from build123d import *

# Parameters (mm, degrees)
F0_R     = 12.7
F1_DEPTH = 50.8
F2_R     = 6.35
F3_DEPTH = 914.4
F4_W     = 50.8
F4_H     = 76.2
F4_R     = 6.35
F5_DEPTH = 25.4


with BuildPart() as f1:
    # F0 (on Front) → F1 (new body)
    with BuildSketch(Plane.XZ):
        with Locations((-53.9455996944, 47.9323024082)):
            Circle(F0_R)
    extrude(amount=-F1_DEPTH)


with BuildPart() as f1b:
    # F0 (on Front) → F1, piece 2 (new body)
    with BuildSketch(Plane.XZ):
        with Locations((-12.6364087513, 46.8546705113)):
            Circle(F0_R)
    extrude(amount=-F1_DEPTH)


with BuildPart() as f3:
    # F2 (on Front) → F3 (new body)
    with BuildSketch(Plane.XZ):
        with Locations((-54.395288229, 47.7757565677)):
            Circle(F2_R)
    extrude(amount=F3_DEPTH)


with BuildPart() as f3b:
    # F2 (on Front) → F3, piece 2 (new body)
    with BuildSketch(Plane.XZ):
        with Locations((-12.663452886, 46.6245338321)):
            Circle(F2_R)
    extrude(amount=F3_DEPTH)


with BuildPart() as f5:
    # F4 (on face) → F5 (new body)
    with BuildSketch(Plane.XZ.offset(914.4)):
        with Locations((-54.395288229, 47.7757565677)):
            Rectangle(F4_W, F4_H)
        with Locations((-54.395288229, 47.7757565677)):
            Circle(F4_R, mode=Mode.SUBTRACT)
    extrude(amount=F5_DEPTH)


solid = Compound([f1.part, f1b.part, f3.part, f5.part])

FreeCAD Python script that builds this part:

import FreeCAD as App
import Part
import Sketcher

V = App.Vector
Q = App.Units.Quantity

doc = App.newDocument("Part")
body = doc.addObject("PartDesign::Body", "Body")

# Sketch on XZ plane
sketch1 = body.newObject("Sketcher::SketchObject", "Sketch")
sketch1.AttachmentSupport = (doc.getObject("XZ_Plane"), [""])
sketch1.MapMode = "FlatFace"
sketch1.addGeometry(Part.Circle(V(-53.9456, 47.932302, 0), V(0, 0, 1), 12.7), False)
sketch1.addConstraint(Sketcher.Constraint("Diameter", 0, Q("1 in")))
sketch1.addConstraint(Sketcher.Constraint("DistanceX", 0, 3, -1, 1, Q("53.9456 mm")))
sketch1.addConstraint(Sketcher.Constraint("DistanceY", -1, 1, 0, 3, Q("47.932302 mm")))
pad1 = body.newObject("PartDesign::Pad", "Pad")
pad1.Profile = sketch1
pad1.Length = Q("2 in")
pad1.Reversed = True
body2 = doc.addObject("PartDesign::Body", "Body001")

# Sketch on XZ plane
sketch2 = body2.newObject("Sketcher::SketchObject", "Sketch001")
sketch2.AttachmentSupport = (doc.getObject("XZ_Plane001"), [""])
sketch2.MapMode = "FlatFace"
sketch2.addGeometry(Part.Circle(V(-12.636409, 46.854671, 0), V(0, 0, 1), 12.7), False)
sketch2.addConstraint(Sketcher.Constraint("Diameter", 0, Q("1 in")))
sketch2.addConstraint(Sketcher.Constraint("DistanceX", 0, 3, -1, 1, Q("12.636409 mm")))
sketch2.addConstraint(Sketcher.Constraint("DistanceY", -1, 1, 0, 3, Q("46.854671 mm")))
pad2 = body2.newObject("PartDesign::Pad", "Pad001")
pad2.Profile = sketch2
pad2.Length = Q("2 in")
pad2.Reversed = True
body3 = doc.addObject("PartDesign::Body", "Body002")

# Sketch on XZ plane
sketch3 = body3.newObject("Sketcher::SketchObject", "Sketch002")
sketch3.AttachmentSupport = (doc.getObject("XZ_Plane002"), [""])
sketch3.MapMode = "FlatFace"
sketch3.addGeometry(Part.Circle(V(-54.395288, 47.775757, 0), V(0, 0, 1), 6.35), False)
sketch3.addConstraint(Sketcher.Constraint("Diameter", 0, Q("0.5 in")))
sketch3.addConstraint(Sketcher.Constraint("DistanceX", 0, 3, -1, 1, Q("54.395288 mm")))
sketch3.addConstraint(Sketcher.Constraint("DistanceY", -1, 1, 0, 3, Q("47.775757 mm")))
pad3 = body3.newObject("PartDesign::Pad", "Pad002")
pad3.Profile = sketch3
pad3.Length = Q("36 in")
body4 = doc.addObject("PartDesign::Body", "Body003")

# Sketch on XZ plane
sketch4 = body4.newObject("Sketcher::SketchObject", "Sketch003")
sketch4.AttachmentSupport = (doc.getObject("XZ_Plane003"), [""])
sketch4.MapMode = "FlatFace"
sketch4.addGeometry(Part.Circle(V(-12.663453, 46.624534, 0), V(0, 0, 1), 6.35), False)
sketch4.addConstraint(Sketcher.Constraint("Diameter", 0, Q("0.5 in")))
sketch4.addConstraint(Sketcher.Constraint("DistanceX", 0, 3, -1, 1, Q("12.663453 mm")))
sketch4.addConstraint(Sketcher.Constraint("DistanceY", -1, 1, 0, 3, Q("46.624534 mm")))
pad4 = body4.newObject("PartDesign::Pad", "Pad003")
pad4.Profile = sketch4
pad4.Length = Q("36 in")
body5 = doc.addObject("PartDesign::Body", "Body004")

# Sketch on XZ plane
sketch5 = body5.newObject("Sketcher::SketchObject", "Sketch004")
sketch5.AttachmentSupport = (doc.getObject("XZ_Plane004"), [""])
sketch5.MapMode = "FlatFace"
sketch5.AttachmentOffset = App.Placement(V(0, 0, 36 * 25.4), App.Rotation())
sketch5.addGeometry(Part.LineSegment(V(-79.795288, 85.875757, 0), V(-79.795288, 9.675757, 0)), False)
sketch5.addGeometry(Part.LineSegment(V(-79.795288, 9.675757, 0), V(-28.995288, 9.675757, 0)), False)
sketch5.addGeometry(Part.LineSegment(V(-28.995288, 9.675757, 0), V(-28.995288, 85.875757, 0)), False)
sketch5.addGeometry(Part.LineSegment(V(-28.995288, 85.875757, 0), V(-79.795288, 85.875757, 0)), False)
sketch5.addGeometry(Part.Circle(V(-54.395288, 47.775757, 0), V(0, 0, 1), 6.35), False)
sketch5.addConstraint(Sketcher.Constraint("Coincident", 0, 2, 1, 1))
sketch5.addConstraint(Sketcher.Constraint("Coincident", 1, 2, 2, 1))
sketch5.addConstraint(Sketcher.Constraint("Coincident", 2, 2, 3, 1))
sketch5.addConstraint(Sketcher.Constraint("Coincident", 3, 2, 0, 1))
sketch5.addConstraint(Sketcher.Constraint("Vertical", 0))
sketch5.addConstraint(Sketcher.Constraint("Horizontal", 1))
sketch5.addConstraint(Sketcher.Constraint("Vertical", 2))
sketch5.addConstraint(Sketcher.Constraint("Horizontal", 3))
sketch5.addConstraint(Sketcher.Constraint("Diameter", 4, Q("0.5 in")))
sketch5.addConstraint(Sketcher.Constraint("DistanceX", 1, 1, 1, 2, Q("2 in")))
sketch5.addConstraint(Sketcher.Constraint("DistanceY", 0, 2, 0, 1, Q("3 in")))
sketch5.addConstraint(Sketcher.Constraint("DistanceX", 0, 2, 4, 3, Q("1 in")))
sketch5.addConstraint(Sketcher.Constraint("DistanceY", 0, 2, 4, 3, Q("1.5 in")))
sketch5.addConstraint(Sketcher.Constraint("DistanceX", 4, 3, -1, 1, Q("54.395288 mm")))
sketch5.addConstraint(Sketcher.Constraint("DistanceY", -1, 1, 4, 3, Q("47.775757 mm")))
pad5 = body5.newObject("PartDesign::Pad", "Pad004")
pad5.Profile = sketch5
pad5.Length = Q("1 in")
body4.Visibility = False

doc.recompute()
